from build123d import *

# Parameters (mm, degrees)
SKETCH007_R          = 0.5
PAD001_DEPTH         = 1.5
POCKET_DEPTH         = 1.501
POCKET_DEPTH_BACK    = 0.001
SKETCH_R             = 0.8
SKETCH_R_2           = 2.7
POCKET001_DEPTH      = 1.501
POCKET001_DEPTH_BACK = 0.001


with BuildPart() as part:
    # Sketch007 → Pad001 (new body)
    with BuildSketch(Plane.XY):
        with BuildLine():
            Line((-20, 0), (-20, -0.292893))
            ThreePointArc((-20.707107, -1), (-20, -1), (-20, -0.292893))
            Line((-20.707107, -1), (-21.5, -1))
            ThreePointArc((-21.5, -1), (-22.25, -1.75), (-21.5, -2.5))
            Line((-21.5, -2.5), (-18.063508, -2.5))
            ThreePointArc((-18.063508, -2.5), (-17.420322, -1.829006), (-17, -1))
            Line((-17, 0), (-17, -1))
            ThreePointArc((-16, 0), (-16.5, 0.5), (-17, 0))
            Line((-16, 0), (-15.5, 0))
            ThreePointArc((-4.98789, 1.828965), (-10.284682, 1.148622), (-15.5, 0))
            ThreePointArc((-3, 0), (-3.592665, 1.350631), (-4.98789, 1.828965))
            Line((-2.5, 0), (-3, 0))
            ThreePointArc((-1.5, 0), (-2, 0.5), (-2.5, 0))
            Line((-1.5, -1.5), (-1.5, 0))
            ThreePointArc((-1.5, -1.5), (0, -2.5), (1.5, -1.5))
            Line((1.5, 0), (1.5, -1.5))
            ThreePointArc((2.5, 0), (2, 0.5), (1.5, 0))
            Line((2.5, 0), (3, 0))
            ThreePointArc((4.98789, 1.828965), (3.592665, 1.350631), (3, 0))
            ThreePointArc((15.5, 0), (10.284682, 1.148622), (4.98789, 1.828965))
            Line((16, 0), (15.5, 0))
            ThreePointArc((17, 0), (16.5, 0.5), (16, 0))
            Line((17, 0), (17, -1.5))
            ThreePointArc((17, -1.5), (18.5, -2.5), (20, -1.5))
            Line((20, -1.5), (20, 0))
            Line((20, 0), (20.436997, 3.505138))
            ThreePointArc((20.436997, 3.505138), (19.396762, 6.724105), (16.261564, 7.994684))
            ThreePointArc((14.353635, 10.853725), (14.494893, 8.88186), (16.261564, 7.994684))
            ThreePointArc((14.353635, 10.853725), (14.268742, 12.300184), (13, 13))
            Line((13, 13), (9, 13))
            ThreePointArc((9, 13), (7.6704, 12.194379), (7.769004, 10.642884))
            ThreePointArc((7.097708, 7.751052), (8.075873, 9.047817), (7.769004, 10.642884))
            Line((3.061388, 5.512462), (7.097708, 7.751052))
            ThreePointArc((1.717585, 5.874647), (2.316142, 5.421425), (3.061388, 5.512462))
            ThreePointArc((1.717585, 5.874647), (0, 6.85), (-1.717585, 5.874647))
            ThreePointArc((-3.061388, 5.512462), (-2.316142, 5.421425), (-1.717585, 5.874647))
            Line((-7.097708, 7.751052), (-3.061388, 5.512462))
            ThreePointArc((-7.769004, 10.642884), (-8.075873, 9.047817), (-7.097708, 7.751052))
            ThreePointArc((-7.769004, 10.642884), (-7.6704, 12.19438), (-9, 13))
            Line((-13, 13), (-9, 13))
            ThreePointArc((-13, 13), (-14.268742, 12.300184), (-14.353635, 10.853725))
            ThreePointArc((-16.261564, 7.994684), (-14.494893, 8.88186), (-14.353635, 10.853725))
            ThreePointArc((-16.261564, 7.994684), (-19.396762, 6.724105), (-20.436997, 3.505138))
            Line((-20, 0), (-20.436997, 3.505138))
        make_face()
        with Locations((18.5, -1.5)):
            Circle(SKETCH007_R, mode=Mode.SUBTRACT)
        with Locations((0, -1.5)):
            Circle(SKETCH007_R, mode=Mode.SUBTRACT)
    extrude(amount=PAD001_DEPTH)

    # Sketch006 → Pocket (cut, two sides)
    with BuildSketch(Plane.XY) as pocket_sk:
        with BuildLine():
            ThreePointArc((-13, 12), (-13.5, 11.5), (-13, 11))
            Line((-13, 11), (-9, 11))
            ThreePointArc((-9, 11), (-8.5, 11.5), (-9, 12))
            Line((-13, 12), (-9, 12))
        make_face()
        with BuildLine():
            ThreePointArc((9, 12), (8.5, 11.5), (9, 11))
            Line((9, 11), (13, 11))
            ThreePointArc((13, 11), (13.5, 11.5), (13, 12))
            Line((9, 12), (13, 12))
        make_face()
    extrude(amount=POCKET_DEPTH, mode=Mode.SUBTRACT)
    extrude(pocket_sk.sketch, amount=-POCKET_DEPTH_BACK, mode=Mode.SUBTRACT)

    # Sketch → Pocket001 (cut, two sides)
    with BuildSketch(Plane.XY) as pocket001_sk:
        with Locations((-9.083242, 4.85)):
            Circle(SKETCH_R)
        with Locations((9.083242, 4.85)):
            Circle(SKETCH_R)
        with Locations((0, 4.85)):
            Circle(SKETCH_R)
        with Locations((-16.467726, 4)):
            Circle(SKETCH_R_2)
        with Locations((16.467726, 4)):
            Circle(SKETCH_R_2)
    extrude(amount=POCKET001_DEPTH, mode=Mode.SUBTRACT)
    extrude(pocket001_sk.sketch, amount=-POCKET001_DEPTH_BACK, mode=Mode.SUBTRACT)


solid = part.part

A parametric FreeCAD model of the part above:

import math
import FreeCAD as App
import Part
import Sketcher

doc = App.newDocument("Part")
body = doc.addObject("PartDesign::Body", "Body")

# Sketch on XY plane
sketch1 = body.newObject("Sketcher::SketchObject", "Sketch")
sketch1.AttachmentSupport = (doc.getObject("XY_Plane"), [""])
sketch1.MapMode = "FlatFace"
sketch1.addGeometry(Part.LineSegment(App.Vector(-20, 0, 0), App.Vector(-20, -0.292893, 0)), False)
sketch1.addGeometry(Part.ArcOfCircle(Part.Circle(App.Vector(-20.353554, -0.646447, 0), App.Vector(0, 0, 1), 0.5), math.radians(-135), math.radians(45)), False)
sketch1.addGeometry(Part.LineSegment(App.Vector(-20.707107, -1, 0), App.Vector(-21.5, -1, 0)), False)
sketch1.addGeometry(Part.ArcOfCircle(Part.Circle(App.Vector(-21.5, -1.75, 0), App.Vector(0, 0, 1), 0.75), math.radians(90), math.radians(270)), False)
sketch1.addGeometry(Part.LineSegment(App.Vector(-21.5, -2.5, 0), App.Vector(-18.063508, -2.5, 0)), False)
sketch1.addGeometry(Part.ArcOfCircle(Part.Circle(App.Vector(-19.999998, -0.000002, 0), App.Vector(0, 0, 1), 3.162275), math.radians(-52.238763), math.radians(-18.434926)), False)
sketch1.addGeometry(Part.LineSegment(App.Vector(-17, -1, 0), App.Vector(-17, 0, 0)), False)
sketch1.addGeometry(Part.ArcOfCircle(Part.Circle(App.Vector(-16.5, 0, 0), App.Vector(0, 0, 1), 0.5), math.radians(0), math.radians(180)), False)
sketch1.addGeometry(Part.LineSegment(App.Vector(-16, 0, 0), App.Vector(-15.5, 0, 0)), False)
sketch1.addGeometry(Part.ArcOfCircle(Part.Circle(App.Vector(0.000018, -57.963441, 0), App.Vector(0, 0, 1), 60.000092), math.radians(94.768597), math.radians(104.971185)), False)
sketch1.addGeometry(Part.ArcOfCircle(Part.Circle(App.Vector(-4.835318, -0.000001, 0), App.Vector(0, 0, 1), 1.835318), math.radians(0.000025), math.radians(94.768547)), False)
sketch1.addGeometry(Part.LineSegment(App.Vector(-3, 0, 0), App.Vector(-2.5, 0, 0)), False)
sketch1.addGeometry(Part.ArcOfCircle(Part.Circle(App.Vector(-2, 0, 0), App.Vector(0, 0, 1), 0.5), math.radians(0), math.radians(180)), False)
sketch1.addGeometry(Part.LineSegment(App.Vector(-1.5, 0, 0), App.Vector(-1.5, -1.5, 0)), False)
sketch1.addGeometry(Part.ArcOfCircle(Part.Circle(App.Vector(0, -0.875, 0), App.Vector(0, 0, 1), 1.625), math.radians(-157.380135), math.radians(-22.619865)), False)
sketch1.addGeometry(Part.LineSegment(App.Vector(1.5, -1.5, 0), App.Vector(1.5, 0, 0)), False)
sketch1.addGeometry(Part.ArcOfCircle(Part.Circle(App.Vector(2, 0, 0), App.Vector(0, 0, 1), 0.5), math.radians(0), math.radians(180)), False)
sketch1.addGeometry(Part.LineSegment(App.Vector(2.5, 0, 0), App.Vector(3, 0, 0)), False)
sketch1.addGeometry(Part.ArcOfCircle(Part.Circle(App.Vector(4.835318, -0.000001, 0), App.Vector(0, 0, 1), 1.835318), math.radians(85.231453), math.radians(179.999975)), False)
sketch1.addGeometry(Part.ArcOfCircle(Part.Circle(App.Vector(-0.000018, -57.963441, 0), App.Vector(0, 0, 1), 60.000092), math.radians(75.028815), math.radians(85.231403)), False)
sketch1.addGeometry(Part.LineSegment(App.Vector(15.5, 0, 0), App.Vector(16, 0, 0)), False)
sketch1.addGeometry(Part.ArcOfCircle(Part.Circle(App.Vector(16.5, 0, 0), App.Vector(0, 0, 1), 0.5), math.radians(0), math.radians(180)), False)
sketch1.addGeometry(Part.LineSegment(App.Vector(17, 0, 0), App.Vector(17, -1.5, 0)), False)
sketch1.addGeometry(Part.ArcOfCircle(Part.Circle(App.Vector(18.5, -0.875, 0), App.Vector(0, 0, 1), 1.625), math.radians(-157.380135), math.radians(-22.619865)), False)
sketch1.addGeometry(Part.LineSegment(App.Vector(20, -1.5, 0), App.Vector(20, 0, 0)), False)
sketch1.addGeometry(Part.LineSegment(App.Vector(20, 0, 0), App.Vector(20.436997, 3.505138, 0)), False)
sketch1.addGeometry(Part.ArcOfCircle(Part.Circle(App.Vector(16.467725, 4, 0), App.Vector(0, 0, 1), 4.000001), math.radians(-7.106578), math.radians(92.954353)), False)
sketch1.addGeometry(Part.ArcOfCircle(Part.Circle(App.Vector(16.158483, 9.992026, 0), App.Vector(0, 0, 1), 2.000001), math.radians(154.478534), math.radians(272.954352)), False)
sketch1.addGeometry(Part.ArcOfCircle(Part.Circle(App.Vector(13.000001, 11.500001, 0), App.Vector(0, 0, 1), 1.499999), math.radians(-25.521551), math.radians(90.000023)), False)
sketch1.addGeometry(Part.LineSegment(App.Vector(13, 13, 0), App.Vector(9, 13, 0)), False)
sketch1.addGeometry(Part.ArcOfCircle(Part.Circle(App.Vector(9.000001, 11.5, 0), App.Vector(0, 0, 1), 1.5), math.radians(90.000027), math.radians(214.848643)), False)
sketch1.addGeometry(Part.ArcOfCircle(Part.Circle(App.Vector(6.127675, 9.500063, 0), App.Vector(0, 0, 1), 2.000001), math.radians(-60.986448), math.radians(34.848645)), False)
sketch1.addGeometry(Part.LineSegment(App.Vector(7.097708, 7.751052, 0), App.Vector(3.061388, 5.512462, 0)), False)
sketch1.addGeometry(Part.ArcOfCircle(Part.Circle(App.Vector(2.576377, 6.38697, 0), App.Vector(0, 0, 1), 0.999999), math.radians(-149.181319), math.radians(-60.986814)), False)
sketch1.addGeometry(Part.ArcOfCircle(Part.Circle(App.Vector(0, 4.85, 0), App.Vector(0, 0, 1), 2), math.radians(30.818719), math.radians(149.181281)), False)
sketch1.addGeometry(Part.ArcOfCircle(Part.Circle(App.Vector(-2.576377, 6.38697, 0), App.Vector(0, 0, 1), 0.999999), math.radians(-119.013186), math.radians(-30.818681)), False)
sketch1.addGeometry(Part.LineSegment(App.Vector(-3.061388, 5.512462, 0), App.Vector(-7.097708, 7.751052, 0)), False)
sketch1.addGeometry(Part.ArcOfCircle(Part.Circle(App.Vector(-6.127675, 9.500063, 0), App.Vector(0, 0, 1), 2.000001), math.radians(145.151355), math.radians(240.986448)), False)
sketch1.addGeometry(Part.ArcOfCircle(Part.Circle(App.Vector(-9, 11.5, 0), App.Vector(0, 0, 1), 1.5), math.radians(-34.848672), math.radians(90.000002)), False)
sketch1.addGeometry(Part.LineSegment(App.Vector(-9, 13, 0), App.Vector(-13, 13, 0)), False)
sketch1.addGeometry(Part.ArcOfCircle(Part.Circle(App.Vector(-13.000001, 11.500001, 0), App.Vector(0, 0, 1), 1.499999), math.radians(89.999977), math.radians(205.521551)), False)
sketch1.addGeometry(Part.ArcOfCircle(Part.Circle(App.Vector(-16.158483, 9.992026, 0), App.Vector(0, 0, 1), 2.000001), math.radians(-92.954352), math.radians(25.521466)), False)
sketch1.addGeometry(Part.ArcOfCircle(Part.Circle(App.Vector(-16.467725, 4, 0), App.Vector(0, 0, 1), 4.000001), math.radians(87.045647), math.radians(187.106578)), False)
sketch1.addGeometry(Part.LineSegment(App.Vector(-20.436997, 3.505138, 0), App.Vector(-20, 0, 0)), False)
sketch1.addGeometry(Part.Circle(App.Vector(0, -1.5, 0), App.Vector(0, 0, 1), 0.5), False)
sketch1.addGeometry(Part.Circle(App.Vector(18.5, -1.5, 0), App.Vector(0, 0, 1), 0.5), False)
sketch1.addConstraint(Sketcher.Constraint("Coincident", 0, 2, 1, 2))
sketch1.addConstraint(Sketcher.Constraint("Coincident", 1, 1, 2, 1))
sketch1.addConstraint(Sketcher.Constraint("Tangent", 2, 2, 3, 1))
sketch1.addConstraint(Sketcher.Constraint("Tangent", 3, 2, 4, 1))
sketch1.addConstraint(Sketcher.Constraint("Coincident", 4, 2, 5, 1))
sketch1.addConstraint(Sketcher.Constraint("Coincident", 5, 2, 6, 1))
sketch1.addConstraint(Sketcher.Constraint("Tangent", 6, 2, 7, 2))
sketch1.addConstraint(Sketcher.Constraint("Coincident", 7, 1, 8, 1))
sketch1.addConstraint(Sketcher.Constraint("Coincident", 8, 2, 9, 2))
sketch1.addConstraint(Sketcher.Constraint("Tangent", 9, 1, 10, 2))
sketch1.addConstraint(Sketcher.Constraint("Coincident", 10, 1, 11, 1))
sketch1.addConstraint(Sketcher.Constraint("Coincident", 11, 2, 12, 2))
sketch1.addConstraint(Sketcher.Constraint("Tangent", 12, 1, 13, 1))
sketch1.addConstraint(Sketcher.Constraint("Coincident", 13, 2, 14, 1))
sketch1.addConstraint(Sketcher.Constraint("Coincident", 14, 2, 15, 1))
sketch1.addConstraint(Sketcher.Constraint("Tangent", 15, 2, 16, 2))
sketch1.addConstraint(Sketcher.Constraint("Coincident", 16, 1, 17, 1))
sketch1.addConstraint(Sketcher.Constraint("Coincident", 17, 2, 18, 2))
sketch1.addConstraint(Sketcher.Constraint("Tangent", 18, 1, 19, 2))
sketch1.addConstraint(Sketcher.Constraint("Coincident", 19, 1, 20, 1))
sketch1.addConstraint(Sketcher.Constraint("Coincident", 20, 2, 21, 2))
sketch1.addConstraint(Sketcher.Constraint("Tangent", 21, 1, 22, 1))
sketch1.addConstraint(Sketcher.Constraint("Coincident", 22, 2, 23, 1))
sketch1.addConstraint(Sketcher.Constraint("Coincident", 23, 2, 24, 1))
sketch1.addConstraint(Sketcher.Constraint("Coincident", 24, 2, 25, 1))
sketch1.addConstraint(Sketcher.Constraint("Tangent", 25, 2, 26, 1))
sketch1.addConstraint(Sketcher.Constraint("Tangent", 26, 2, 27, 2))
sketch1.addConstraint(Sketcher.Constraint("Tangent", 27, 1, 28, 1))
sketch1.addConstraint(Sketcher.Constraint("Tangent", 28, 2, 29, 1))
sketch1.addConstraint(Sketcher.Constraint("Tangent", 29, 2, 30, 1))
sketch1.addConstraint(Sketcher.Constraint("Tangent", 30, 2, 31, 2))
sketch1.addConstraint(Sketcher.Constraint("Coincident", 31, 1, 32, 1))
sketch1.addConstraint(Sketcher.Constraint("Tangent", 32, 2, 33, 2))
sketch1.addConstraint(Sketcher.Constraint("Tangent", 33, 1, 34, 1))
sketch1.addConstraint(Sketcher.Constraint("Tangent", 34, 2, 35, 2))
sketch1.addConstraint(Sketcher.Constraint("Tangent", 35, 1, 36, 1))
sketch1.addConstraint(Sketcher.Constraint("Coincident", 36, 2, 37, 2))
sketch1.addConstraint(Sketcher.Constraint("Tangent", 37, 1, 38, 1))
sketch1.addConstraint(Sketcher.Constraint("Tangent", 38, 2, 39, 1))
sketch1.addConstraint(Sketcher.Constraint("Tangent", 39, 2, 40, 1))
sketch1.addConstraint(Sketcher.Constraint("Tangent", 40, 2, 41, 2))
sketch1.addConstraint(Sketcher.Constraint("Tangent", 41, 1, 42, 1))
sketch1.addConstraint(Sketcher.Constraint("Tangent", 42, 2, 43, 1))
sketch1.addConstraint(Sketcher.Constraint("Coincident", 43, 2, 0, 1))
sketch1.addConstraint(Sketcher.Constraint("Vertical", 0))
sketch1.addConstraint(Sketcher.Constraint("Horizontal", 2))
sketch1.addConstraint(Sketcher.Constraint("Horizontal", 4))
sketch1.addConstraint(Sketcher.Constraint("Vertical", 6))
sketch1.addConstraint(Sketcher.Constraint("Horizontal", 8))
sketch1.addConstraint(Sketcher.Constraint("Horizontal", 11))
sketch1.addConstraint(Sketcher.Constraint("Vertical", 13))
sketch1.addConstraint(Sketcher.Constraint("Vertical", 15))
sketch1.addConstraint(Sketcher.Constraint("Horizontal", 17))
sketch1.addConstraint(Sketcher.Constraint("Horizontal", 20))
sketch1.addConstraint(Sketcher.Constraint("Vertical", 22))
sketch1.addConstraint(Sketcher.Constraint("Vertical", 24))
sketch1.addConstraint(Sketcher.Constraint("Horizontal", 29))
sketch1.addConstraint(Sketcher.Constraint("Horizontal", 39))
sketch1.addConstraint(Sketcher.Constraint("Coincident", 43, 2, 5, 3))
sketch1.addConstraint(Sketcher.Constraint("Equal", 1, 7))
sketch1.addConstraint(Sketcher.Constraint("Equal", 7, 12))
sketch1.addConstraint(Sketcher.Constraint("Equal", 12, 16))
sketch1.addConstraint(Sketcher.Constraint("Equal", 10, 18))
sketch1.addConstraint(Sketcher.Constraint("Equal", 9, 19))
sketch1.addConstraint(Sketcher.Constraint("Equal", 16, 21))
sketch1.addConstraint(Sketcher.Constraint("Equal", 14, 23))
sketch1.addConstraint(Sketcher.Constraint("Equal", 28, 30))
sketch1.addConstraint(Sketcher.Constraint("Equal", 27, 31))
sketch1.addConstraint(Sketcher.Constraint("Equal", 31, 34))
sketch1.addConstraint(Sketcher.Constraint("Equal", 33, 35))
sketch1.addConstraint(Sketcher.Constraint("Equal", 34, 37))
sketch1.addConstraint(Sketcher.Constraint("Equal", 30, 38))
sketch1.addConstraint(Sketcher.Constraint("Equal", 38, 40))
sketch1.addConstraint(Sketcher.Constraint("Equal", 37, 41))
sketch1.addConstraint(Sketcher.Constraint("Equal", 26, 42))
sketch1.addConstraint(Sketcher.Constraint("Equal", 21, 44))
sketch1.addConstraint(Sketcher.Constraint("Equal", 44, 45))
sketch1.addConstraint(Sketcher.Constraint("Symmetric", 12, 3, 16, 3, -1, 1))
sketch1.addConstraint(Sketcher.Constraint("Symmetric", 10, 3, 18, 3, -1, 1))
sketch1.addConstraint(Sketcher.Constraint("Symmetric", 7, 3, 21, 3, -1, 1))
sketch1.addConstraint(Sketcher.Constraint("Symmetric", 8, 2, 19, 1, -1, 1))
sketch1.addConstraint(Sketcher.Constraint("Symmetric", 24, 2, 43, 2, -1, 1))
sketch1.addConstraint(Sketcher.Constraint("Symmetric", 9, 3, 19, 3, -2))
sketch1.addConstraint(Sketcher.Constraint("Symmetric", 33, 3, 35, 3, -2))
sketch1.addConstraint(Sketcher.Constraint("Symmetric", 31, 3, 37, 3, -2))
sketch1.addConstraint(Sketcher.Constraint("Symmetric", 28, 3, 40, 3, -2))
sketch1.addConstraint(Sketcher.Constraint("Symmetric", 26, 3, 42, 3, -2))
sketch1.addConstraint(Sketcher.Constraint("PointOnObject", 7, 3, -1))
sketch1.addConstraint(Sketcher.Constraint("PointOnObject", 12, 3, -1))
sketch1.addConstraint(Sketcher.Constraint("PointOnObject", 14, 3, -2))
sketch1.addConstraint(Sketcher.Constraint("PointOnObject", 44, 3, -2))
sketch1.addConstraint(Sketcher.Constraint("PointOnObject", 10, 1, -1))
sketch1.addConstraint(Sketcher.Constraint("PointOnObject", 16, 1, -1))
sketch1.addConstraint(Sketcher.Constraint("PointOnObject", 24, 2, -1))
sketch1.addConstraint(Sketcher.Constraint("Horizontal", 14, 3, 23, 3))
sketch1.addConstraint(Sketcher.Constraint("Horizontal", 44, 3, 45, 3))
sketch1.addConstraint(Sketcher.Constraint("Horizontal", 2, 2, 5, 2))
sketch1.addConstraint(Sketcher.Constraint("Horizontal", 45, 3, 13, 2))
sketch1.addConstraint(Sketcher.Constraint("Horizontal", 14, 2, 22, 2))
sketch1.addConstraint(Sketcher.Constraint("Horizontal", 22, 2, 23, 2))
sketch1.addConstraint(Sketcher.Constraint("Horizontal", 31, 1, 36, 2))
sketch1.addConstraint(Sketcher.Constraint("Vertical", 23, 3, 45, 3))
sketch1.addConstraint(Sketcher.Constraint("Equal", 8, 11))
sketch1.addConstraint(Sketcher.Constraint("Diameter", 44, 1.0))
sketch1.addConstraint(Sketcher.Constraint("Radius", 26, 4.000001))
sketch1.addConstraint(Sketcher.Constraint("Radius", 27, 2.000001))
sketch1.addConstraint(Sketcher.Constraint("Radius", 33, 0.999999))
sketch1.addConstraint(Sketcher.Constraint("Radius", 28, 1.499999))
sketch1.addConstraint(Sketcher.Constraint("DistanceX", 29, 2, 29, 1, 4.0))
sketch1.addConstraint(Sketcher.Constraint("DistanceY", 6, 1, 6, 2, 1.0))
sketch1.addConstraint(Sketcher.Constraint("Radius", 3, 0.75))
sketch1.addConstraint(Sketcher.Constraint("DistanceX", 8, 1, 8, 2, 0.5))
sketch1.addConstraint(Sketcher.Constraint("DistanceY", 13, 2, 13, 1, 1.5))
sketch1.addConstraint(Sketcher.Constraint("DistanceX", 12, 3, -1, 1, 2.0))
sketch1.addConstraint(Sketcher.Constraint("DistanceY", -1, 1, 26, 3, 4.0))
sketch1.addConstraint(Sketcher.Constraint("DistanceX", -1, 1, 28, 3, 13.000001))
sketch1.addConstraint(Sketcher.Constraint("DistanceX", 0, 2, -1, 1, 20.0))
sketch1.addConstraint(Sketcher.Constraint("DistanceY", -1, 1, 28, 2, 13.0))
sketch1.addConstraint(Sketcher.Constraint("Radius", 14, 1.625))
sketch1.addConstraint(Sketcher.Constraint("DistanceX", 3, 3, -1, 1, 21.5))
sketch1.addConstraint(Sketcher.Constraint("DistanceY", -1, 1, 34, 3, 4.85))
sketch1.addConstraint(Sketcher.Constraint("Radius", 9, 60.000092))
sketch1.addConstraint(Sketcher.Constraint("Radius", 10, 1.835318))
sketch1.addConstraint(Sketcher.Constraint("DistanceX", 2, 2, 2, 1, 0.792893))
sketch1.addConstraint(Sketcher.Constraint("DistanceY", -1, 1, 33, 3, 6.38697))
sketch1.addConstraint(Sketcher.Constraint("DistanceY", -1, 1, 25, 2, 3.505138))
sketch1.addConstraint(Sketcher.Constraint("DistanceX", -1, 1, 31, 1, 7.097708))
sketch1.addConstraint(Sketcher.Constraint("DistanceY", -1, 1, 31, 1, 7.751052))
sketch1.addConstraint(Sketcher.Constraint("DistanceX", 1, 3, -1, 1, 20.353554))
pad1 = body.newObject("PartDesign::Pad", "Pad")
pad1.Profile = sketch1
pad1.Length = 1.5

# Sketch on XY plane
sketch2 = body.newObject("Sketcher::SketchObject", "Sketch001")
sketch2.AttachmentSupport = (doc.getObject("XY_Plane"), [""])
sketch2.MapMode = "FlatFace"
sketch2.addGeometry(Part.ArcOfCircle(Part.Circle(App.Vector(-13, 11.5, 0), App.Vector(0, 0, 1), 0.5), math.radians(90), math.radians(270)), False)
sketch2.addGeometry(Part.LineSegment(App.Vector(-13, 11, 0), App.Vector(-9, 11, 0)), False)
sketch2.addGeometry(Part.ArcOfCircle(Part.Circle(App.Vector(-9, 11.5, 0), App.Vector(0, 0, 1), 0.5), math.radians(-90), math.radians(90)), False)
sketch2.addGeometry(Part.LineSegment(App.Vector(-9, 12, 0), App.Vector(-13, 12, 0)), False)
sketch2.addGeometry(Part.ArcOfCircle(Part.Circle(App.Vector(9, 11.5, 0), App.Vector(0, 0, 1), 0.5), math.radians(90), math.radians(270)), False)
sketch2.addGeometry(Part.LineSegment(App.Vector(9, 11, 0), App.Vector(13, 11, 0)), False)
sketch2.addGeometry(Part.ArcOfCircle(Part.Circle(App.Vector(13, 11.5, 0), App.Vector(0, 0, 1), 0.5), math.radians(-90), math.radians(90)), False)
sketch2.addGeometry(Part.LineSegment(App.Vector(13, 12, 0), App.Vector(9, 12, 0)), False)
sketch2.addConstraint(Sketcher.Constraint("Tangent", 0, 2, 1, 1))
sketch2.addConstraint(Sketcher.Constraint("Tangent", 1, 2, 2, 1))
sketch2.addConstraint(Sketcher.Constraint("Tangent", 2, 2, 3, 1))
sketch2.addConstraint(Sketcher.Constraint("Tangent", 3, 2, 0, 1))
sketch2.addConstraint(Sketcher.Constraint("Tangent", 4, 2, 5, 1))
sketch2.addConstraint(Sketcher.Constraint("Tangent", 5, 2, 6, 1))
sketch2.addConstraint(Sketcher.Constraint("Tangent", 6, 2, 7, 1))
sketch2.addConstraint(Sketcher.Constraint("Tangent", 7, 2, 4, 1))
sketch2.addConstraint(Sketcher.Constraint("Horizontal", 1))
sketch2.addConstraint(Sketcher.Constraint("Horizontal", 3))
sketch2.addConstraint(Sketcher.Constraint("Horizontal", 5))
sketch2.addConstraint(Sketcher.Constraint("Horizontal", 7))
sketch2.addConstraint(Sketcher.Constraint("Equal", 2, 4))
sketch2.addConstraint(Sketcher.Constraint("Symmetric", 2, 3, 4, 3, -2))
sketch2.addConstraint(Sketcher.Constraint("Equal", 3, 5))
sketch2.addConstraint(Sketcher.Constraint("Radius", 0, 0.5))
sketch2.addConstraint(Sketcher.Constraint("DistanceX", 1, 1, 1, 2, 4.0))
sketch2.addConstraint(Sketcher.Constraint("DistanceX", 0, 3, -1, 1, 13.0))
sketch2.addConstraint(Sketcher.Constraint("DistanceY", -1, 1, 0, 2, 11.0))
pocket1 = body.newObject("PartDesign::Pocket", "Pocket")
pocket1.Profile = sketch2
pocket1.Type = "ThroughAll"
pocket1.Midplane = True

# Sketch on XY plane
sketch3 = body.newObject("Sketcher::SketchObject", "Sketch002")
sketch3.AttachmentSupport = (doc.getObject("XY_Plane"), [""])
sketch3.MapMode = "FlatFace"
sketch3.addGeometry(Part.Circle(App.Vector(-9.1, 4.8, 0), App.Vector(0, 0, 1), 0.8), False)
sketch3.addGeometry(Part.Circle(App.Vector(9.1, 4.8, 0), App.Vector(0, 0, 1), 0.8), False)
sketch3.addGeometry(Part.Circle(App.Vector(0, 4.8, 0), App.Vector(0, 0, 1), 0.8), False)
sketch3.addGeometry(Part.Circle(App.Vector(-16.5, 4, 0), App.Vector(0, 0, 1), 2.7), False)
sketch3.addGeometry(Part.Circle(App.Vector(16.5, 4, 0), App.Vector(0, 0, 1), 2.7), False)
sketch3.addConstraint(Sketcher.Constraint("Equal", 0, 1))
sketch3.addConstraint(Sketcher.Constraint("Equal", 1, 2))
sketch3.addConstraint(Sketcher.Constraint("Equal", 3, 4))
sketch3.addConstraint(Sketcher.Constraint("Symmetric", 0, 3, 1, 3, -2))
sketch3.addConstraint(Sketcher.Constraint("Symmetric", 3, 3, 4, 3, -2))
sketch3.addConstraint(Sketcher.Constraint("PointOnObject", 2, 3, -2))
sketch3.addConstraint(Sketcher.Constraint("Horizontal", 1, 3, 2, 3))
sketch3.addConstraint(Sketcher.Constraint("Diameter", 0, 1.6))
sketch3.addConstraint(Sketcher.Constraint("Diameter", 3, 5.4))
sketch3.addConstraint(Sketcher.Constraint("DistanceY", -1, 1, 3, 3, 4.0))
sketch3.addConstraint(Sketcher.Constraint("DistanceY", -1, 1, 0, 3, 4.85))
sketch3.addConstraint(Sketcher.Constraint("DistanceX", 3, 3, 4, 3, 32.935452))
sketch3.addConstraint(Sketcher.Constraint("DistanceX", 0, 3, -1, 1, 9.083242))
pocket2 = body.newObject("PartDesign::Pocket", "Pocket001")
pocket2.Profile = sketch3
pocket2.Type = "ThroughAll"
pocket2.Midplane = True

doc.recompute()
